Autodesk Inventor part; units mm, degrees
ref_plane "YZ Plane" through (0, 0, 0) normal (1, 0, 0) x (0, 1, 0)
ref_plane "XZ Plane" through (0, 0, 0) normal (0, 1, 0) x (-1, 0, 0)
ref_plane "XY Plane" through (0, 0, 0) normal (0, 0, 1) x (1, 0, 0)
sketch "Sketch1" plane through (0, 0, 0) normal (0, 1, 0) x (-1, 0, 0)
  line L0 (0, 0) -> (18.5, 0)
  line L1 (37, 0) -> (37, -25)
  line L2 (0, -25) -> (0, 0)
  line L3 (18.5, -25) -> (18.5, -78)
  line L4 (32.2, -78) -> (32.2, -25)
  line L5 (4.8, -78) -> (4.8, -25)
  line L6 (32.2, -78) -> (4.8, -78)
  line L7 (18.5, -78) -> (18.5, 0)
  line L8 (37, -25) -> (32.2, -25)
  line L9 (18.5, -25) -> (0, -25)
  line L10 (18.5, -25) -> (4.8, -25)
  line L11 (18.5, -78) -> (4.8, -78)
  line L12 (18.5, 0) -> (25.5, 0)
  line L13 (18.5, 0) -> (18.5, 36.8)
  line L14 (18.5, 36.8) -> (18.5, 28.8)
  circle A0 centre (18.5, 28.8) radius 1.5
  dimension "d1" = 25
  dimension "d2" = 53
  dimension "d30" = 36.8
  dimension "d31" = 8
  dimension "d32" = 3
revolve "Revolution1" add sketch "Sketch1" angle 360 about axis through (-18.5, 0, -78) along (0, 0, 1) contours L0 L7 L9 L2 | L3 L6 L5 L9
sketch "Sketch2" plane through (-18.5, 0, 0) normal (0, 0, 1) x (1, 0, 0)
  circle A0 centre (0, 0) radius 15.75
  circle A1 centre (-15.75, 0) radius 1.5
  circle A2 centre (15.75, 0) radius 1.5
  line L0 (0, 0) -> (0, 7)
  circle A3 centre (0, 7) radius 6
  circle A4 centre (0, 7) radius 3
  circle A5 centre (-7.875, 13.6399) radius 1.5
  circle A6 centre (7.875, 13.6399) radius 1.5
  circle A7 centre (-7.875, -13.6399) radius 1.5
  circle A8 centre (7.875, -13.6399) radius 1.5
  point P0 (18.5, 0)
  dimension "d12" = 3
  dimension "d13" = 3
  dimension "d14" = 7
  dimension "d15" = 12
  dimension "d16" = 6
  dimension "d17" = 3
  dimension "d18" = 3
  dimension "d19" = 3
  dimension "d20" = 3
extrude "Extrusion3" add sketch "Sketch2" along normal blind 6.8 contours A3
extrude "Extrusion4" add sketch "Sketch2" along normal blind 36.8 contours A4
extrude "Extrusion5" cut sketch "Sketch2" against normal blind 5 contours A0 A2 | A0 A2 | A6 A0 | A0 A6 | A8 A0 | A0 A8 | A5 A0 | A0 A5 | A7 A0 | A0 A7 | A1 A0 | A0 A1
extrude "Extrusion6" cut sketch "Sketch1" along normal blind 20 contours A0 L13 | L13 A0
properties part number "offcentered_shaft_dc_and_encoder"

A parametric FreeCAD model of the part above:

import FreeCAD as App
import Part
import Sketcher

V = App.Vector

doc = App.newDocument("Part")
body = doc.addObject("PartDesign::Body", "Body")

# Sketch on XZ plane
sketch1 = doc.addObject("Sketcher::SketchObject", "Sketch")
body.addObject(sketch1)
sketch1.AttachmentSupport = (doc.XZ_Plane, [""])
sketch1.MapMode = "FlatFace"
sketch1.addGeometry(Part.LineSegment(V(-18.5, 0, 0), V(0, 0, 0)), False)
sketch1.addGeometry(Part.LineSegment(V(0, 0, 0), V(0, -25, 0)), False)
sketch1.addGeometry(Part.LineSegment(V(0, -25, 0), V(-4.8, -25, 0)), False)
sketch1.addGeometry(Part.LineSegment(V(-4.8, -25, 0), V(-4.8, -78, 0)), False)
sketch1.addGeometry(Part.LineSegment(V(-4.8, -78, 0), V(-18.5, -78, 0)), False)
sketch1.addGeometry(Part.LineSegment(V(-18.5, -78, 0), V(-18.5, 0, 0)), False)
sketch1.addGeometry(Part.LineSegment(V(-18.5, -78, 0), V(-18.5, 0, 0)), True)  # axis
sketch1.addConstraint(Sketcher.Constraint("Coincident", 0, 2, 1, 1))
sketch1.addConstraint(Sketcher.Constraint("Coincident", 1, 2, 2, 1))
sketch1.addConstraint(Sketcher.Constraint("Coincident", 2, 2, 3, 1))
sketch1.addConstraint(Sketcher.Constraint("Coincident", 3, 2, 4, 1))
sketch1.addConstraint(Sketcher.Constraint("Coincident", 4, 2, 5, 1))
sketch1.addConstraint(Sketcher.Constraint("Coincident", 5, 2, 0, 1))
sketch1.addConstraint(Sketcher.Constraint("Horizontal", 0))
sketch1.addConstraint(Sketcher.Constraint("Vertical", 1))
sketch1.addConstraint(Sketcher.Constraint("Horizontal", 2))
sketch1.addConstraint(Sketcher.Constraint("Vertical", 3))
sketch1.addConstraint(Sketcher.Constraint("Horizontal", 4))
sketch1.addConstraint(Sketcher.Constraint("Vertical", 5))
sketch1.addConstraint(Sketcher.Constraint("Vertical", 6))
sketch1.addConstraint(Sketcher.Constraint("Coincident", 0, 2, -1, 1))
sketch1.addConstraint(Sketcher.Constraint("Coincident", 6, 1, 4, 2))
sketch1.addConstraint(Sketcher.Constraint("PointOnObject", 6, 2, -1))
sketch1.addConstraint(Sketcher.Constraint("DistanceY", 1, 2, 1, 1, 25.0))
sketch1.addConstraint(Sketcher.Constraint("DistanceY", 3, 2, 3, 1, 53.0))
sketch1.addConstraint(Sketcher.Constraint("DistanceX", 0, 1, 0, 2, 18.5))
sketch1.addConstraint(Sketcher.Constraint("DistanceX", 2, 2, 2, 1, 4.8))
revolution = doc.addObject("PartDesign::Revolution", "Revolution")
body.addObject(revolution)
revolution.Profile = sketch1
revolution.ReferenceAxis = (sketch1, ["Axis0"])
revolution.Angle = 360

# Sketch on XY plane
sketch2 = doc.addObject("Sketcher::SketchObject", "Sketch001")
body.addObject(sketch2)
sketch2.AttachmentSupport = (doc.XY_Plane, [""])
sketch2.MapMode = "FlatFace"
sketch2.addGeometry(Part.Circle(V(-18.5, 7, 0), V(0, 0, 1), 6), False)
sketch2.addGeometry(Part.Circle(V(-18.5, 7, 0), V(0, 0, 1), 3), False)
sketch2.addConstraint(Sketcher.Constraint("Coincident", 1, 3, 0, 3))
sketch2.addConstraint(Sketcher.Constraint("Diameter", 0, 12.0))
sketch2.addConstraint(Sketcher.Constraint("Diameter", 1, 6.0))
sketch2.addConstraint(Sketcher.Constraint("DistanceY", -1, 1, 0, 3, 7.0))
sketch2.addConstraint(Sketcher.Constraint("DistanceX", 0, 3, -1, 1, 18.5))
pad1 = doc.addObject("PartDesign::Pad", "Pad")
body.addObject(pad1)
pad1.Profile = sketch2
pad1.Length = 6.8

# Sketch on XY plane
sketch3 = doc.addObject("Sketcher::SketchObject", "Sketch002")
body.addObject(sketch3)
sketch3.AttachmentSupport = (doc.XY_Plane, [""])
sketch3.MapMode = "FlatFace"
sketch3.addGeometry(Part.Circle(V(-18.5, 7, 0), V(0, 0, 1), 3), False)
sketch3.addConstraint(Sketcher.Constraint("Diameter", 0, 6.0))
sketch3.addConstraint(Sketcher.Constraint("DistanceY", -1, 1, 0, 3, 7.0))
sketch3.addConstraint(Sketcher.Constraint("DistanceX", 0, 3, -1, 1, 18.5))
pad2 = doc.addObject("PartDesign::Pad", "Pad001")
body.addObject(pad2)
pad2.Profile = sketch3
pad2.Length = 36.8

# Sketch on XY plane
sketch4 = doc.addObject("Sketcher::SketchObject", "Sketch003")
body.addObject(sketch4)
sketch4.AttachmentSupport = (doc.XY_Plane, [""])
sketch4.MapMode = "FlatFace"
sketch4.addGeometry(Part.Circle(V(-2.8, 0, 0), V(0, 0, 1), 1.5), False)
sketch4.addGeometry(Part.Circle(V(-10.6, 13.6, 0), V(0, 0, 1), 1.5), False)
sketch4.addGeometry(Part.Circle(V(-10.6, -13.6, 0), V(0, 0, 1), 1.5), False)
sketch4.addGeometry(Part.Circle(V(-26.4, 13.6, 0), V(0, 0, 1), 1.5), False)
sketch4.addGeometry(Part.Circle(V(-26.4, -13.6, 0), V(0, 0, 1), 1.5), False)
sketch4.addGeometry(Part.Circle(V(-34.2, 0, 0), V(0, 0, 1), 1.5), False)
sketch4.addConstraint(Sketcher.Constraint("Equal", 0, 1))
sketch4.addConstraint(Sketcher.Constraint("Equal", 1, 2))
sketch4.addConstraint(Sketcher.Constraint("Equal", 2, 3))
sketch4.addConstraint(Sketcher.Constraint("Equal", 3, 4))
sketch4.addConstraint(Sketcher.Constraint("Equal", 4, 5))
sketch4.addConstraint(Sketcher.Constraint("Symmetric", 1, 3, 2, 3, -1))
sketch4.addConstraint(Sketcher.Constraint("Symmetric", 3, 3, 4, 3, -1))
sketch4.addConstraint(Sketcher.Constraint("PointOnObject", 0, 3, -1))
sketch4.addConstraint(Sketcher.Constraint("PointOnObject", 5, 3, -1))
sketch4.addConstraint(Sketcher.Constraint("Horizontal", 1, 3, 3, 3))
sketch4.addConstraint(Sketcher.Constraint("Diameter", 0, 3.0))
sketch4.addConstraint(Sketcher.Constraint("DistanceX", 5, 3, 0, 3, 31.5))
sketch4.addConstraint(Sketcher.Constraint("DistanceX", 0, 3, -1, 1, 2.75))
sketch4.addConstraint(Sketcher.Constraint("DistanceY", -1, 1, 1, 3, 13.64))
sketch4.addConstraint(Sketcher.Constraint("DistanceX", 3, 3, 1, 3, 15.75))
sketch4.addConstraint(Sketcher.Constraint("DistanceX", 1, 3, -1, 1, 10.625))
pocket1 = doc.addObject("PartDesign::Pocket", "Pocket")
body.addObject(pocket1)
pocket1.Profile = sketch4
pocket1.Length = 5

# Sketch on XZ plane
sketch5 = doc.addObject("Sketcher::SketchObject", "Sketch004")
body.addObject(sketch5)
sketch5.AttachmentSupport = (doc.XZ_Plane, [""])
sketch5.MapMode = "FlatFace"
sketch5.addGeometry(Part.Circle(V(-18.5, 28.8, 0), V(0, 0, 1), 1.5), False)
sketch5.addConstraint(Sketcher.Constraint("Diameter", 0, 3.0))
sketch5.addConstraint(Sketcher.Constraint("DistanceX", 0, 3, -1, 1, 18.5))
sketch5.addConstraint(Sketcher.Constraint("DistanceY", -1, 1, 0, 3, 28.8))
pocket2 = doc.addObject("PartDesign::Pocket", "Pocket001")
body.addObject(pocket2)
pocket2.Profile = sketch5
pocket2.Length = 20

doc.recompute()
